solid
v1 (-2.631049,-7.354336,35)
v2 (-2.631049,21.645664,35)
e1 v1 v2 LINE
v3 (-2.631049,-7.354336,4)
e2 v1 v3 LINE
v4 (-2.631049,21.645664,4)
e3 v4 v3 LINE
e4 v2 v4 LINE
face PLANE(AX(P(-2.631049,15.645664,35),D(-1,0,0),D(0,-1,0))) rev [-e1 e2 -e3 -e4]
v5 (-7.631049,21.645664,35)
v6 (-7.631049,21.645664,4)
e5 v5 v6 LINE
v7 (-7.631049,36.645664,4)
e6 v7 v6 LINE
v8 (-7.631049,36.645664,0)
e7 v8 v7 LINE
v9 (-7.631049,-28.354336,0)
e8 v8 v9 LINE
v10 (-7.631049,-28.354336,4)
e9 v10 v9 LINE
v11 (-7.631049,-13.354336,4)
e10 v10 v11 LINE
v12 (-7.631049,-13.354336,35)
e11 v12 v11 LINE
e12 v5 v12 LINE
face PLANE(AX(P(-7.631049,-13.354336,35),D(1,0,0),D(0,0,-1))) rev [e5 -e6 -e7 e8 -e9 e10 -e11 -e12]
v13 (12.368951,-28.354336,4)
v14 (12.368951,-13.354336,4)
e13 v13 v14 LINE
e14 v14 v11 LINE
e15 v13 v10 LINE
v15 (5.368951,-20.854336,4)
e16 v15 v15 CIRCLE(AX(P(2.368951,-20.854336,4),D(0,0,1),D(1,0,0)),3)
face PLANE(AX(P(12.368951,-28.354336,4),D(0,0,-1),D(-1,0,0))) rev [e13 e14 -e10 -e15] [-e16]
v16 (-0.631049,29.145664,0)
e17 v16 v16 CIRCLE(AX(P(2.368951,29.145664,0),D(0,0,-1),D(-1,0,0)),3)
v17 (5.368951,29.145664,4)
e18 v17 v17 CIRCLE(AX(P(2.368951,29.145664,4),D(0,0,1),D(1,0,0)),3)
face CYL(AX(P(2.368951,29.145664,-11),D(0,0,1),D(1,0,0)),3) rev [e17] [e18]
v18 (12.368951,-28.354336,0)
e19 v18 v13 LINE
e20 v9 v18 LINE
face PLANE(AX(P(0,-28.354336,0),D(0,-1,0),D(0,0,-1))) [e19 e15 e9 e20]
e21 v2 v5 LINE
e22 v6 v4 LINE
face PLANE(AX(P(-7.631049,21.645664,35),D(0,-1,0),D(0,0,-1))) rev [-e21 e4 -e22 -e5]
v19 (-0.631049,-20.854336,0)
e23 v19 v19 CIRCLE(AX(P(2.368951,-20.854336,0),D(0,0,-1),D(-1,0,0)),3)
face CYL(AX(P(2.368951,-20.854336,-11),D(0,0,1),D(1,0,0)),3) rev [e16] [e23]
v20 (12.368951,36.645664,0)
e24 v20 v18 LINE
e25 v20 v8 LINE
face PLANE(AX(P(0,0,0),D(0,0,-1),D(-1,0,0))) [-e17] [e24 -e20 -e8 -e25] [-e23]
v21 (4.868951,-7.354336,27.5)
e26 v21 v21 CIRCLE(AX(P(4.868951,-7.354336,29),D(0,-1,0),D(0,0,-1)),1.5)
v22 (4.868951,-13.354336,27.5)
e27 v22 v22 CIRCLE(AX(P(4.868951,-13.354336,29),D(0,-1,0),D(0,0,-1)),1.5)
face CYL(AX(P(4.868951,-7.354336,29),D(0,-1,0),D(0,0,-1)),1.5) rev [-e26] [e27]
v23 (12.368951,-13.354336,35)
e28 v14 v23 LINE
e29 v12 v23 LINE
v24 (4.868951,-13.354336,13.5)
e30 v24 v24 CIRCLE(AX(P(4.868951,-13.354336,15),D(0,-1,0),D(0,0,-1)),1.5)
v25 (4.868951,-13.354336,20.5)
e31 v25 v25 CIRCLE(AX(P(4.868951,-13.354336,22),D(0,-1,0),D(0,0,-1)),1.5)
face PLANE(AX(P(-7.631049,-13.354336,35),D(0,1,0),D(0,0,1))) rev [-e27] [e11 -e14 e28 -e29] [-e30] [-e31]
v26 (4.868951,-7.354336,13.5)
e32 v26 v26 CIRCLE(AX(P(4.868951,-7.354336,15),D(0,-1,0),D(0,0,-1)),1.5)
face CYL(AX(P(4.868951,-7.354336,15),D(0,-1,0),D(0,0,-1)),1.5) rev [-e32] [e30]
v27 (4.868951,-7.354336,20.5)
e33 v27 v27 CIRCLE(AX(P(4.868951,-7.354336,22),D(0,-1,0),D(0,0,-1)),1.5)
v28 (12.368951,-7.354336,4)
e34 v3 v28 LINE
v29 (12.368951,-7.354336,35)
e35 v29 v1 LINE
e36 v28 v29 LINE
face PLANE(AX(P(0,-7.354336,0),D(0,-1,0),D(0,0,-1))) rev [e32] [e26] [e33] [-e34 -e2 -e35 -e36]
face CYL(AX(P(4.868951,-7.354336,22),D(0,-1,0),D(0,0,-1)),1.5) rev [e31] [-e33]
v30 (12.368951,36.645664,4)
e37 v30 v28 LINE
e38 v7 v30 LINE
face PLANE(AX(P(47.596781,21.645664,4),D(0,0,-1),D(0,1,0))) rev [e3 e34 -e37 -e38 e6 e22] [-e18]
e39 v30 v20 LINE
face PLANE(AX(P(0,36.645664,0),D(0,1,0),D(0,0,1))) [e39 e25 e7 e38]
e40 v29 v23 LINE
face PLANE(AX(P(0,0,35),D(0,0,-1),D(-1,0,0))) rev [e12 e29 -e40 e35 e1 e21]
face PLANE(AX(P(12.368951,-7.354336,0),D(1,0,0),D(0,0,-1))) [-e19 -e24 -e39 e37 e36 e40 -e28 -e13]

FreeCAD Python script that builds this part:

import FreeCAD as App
import Part
import Sketcher

V = App.Vector

doc = App.newDocument("Part")
body = doc.addObject("PartDesign::Body", "Body")

sketch1 = doc.addObject("Sketcher::SketchObject", "Sketch")
body.addObject(sketch1)
sketch1.AttachmentSupport = (doc.XY_Plane, [""])
sketch1.MapMode = "FlatFace"
sketch1.addGeometry(Part.LineSegment(V(-3, 16, 0), V(12, 16, 0)), False)
sketch1.addGeometry(Part.LineSegment(V(12, 16, 0), V(12, 22, 0)), False)
sketch1.addGeometry(Part.LineSegment(V(12, 22, 0), V(-8, 22, 0)), False)
sketch1.addGeometry(Part.LineSegment(V(-8, 22, 0), V(-8, -13, 0)), False)
sketch1.addGeometry(Part.LineSegment(V(-8, -13, 0), V(-3, -13, 0)), False)
sketch1.addGeometry(Part.LineSegment(V(-3, -13, 0), V(-3, 16, 0)), False)
sketch1.addConstraint(Sketcher.Constraint("Coincident", 0, 2, 1, 1))
sketch1.addConstraint(Sketcher.Constraint("Coincident", 1, 2, 2, 1))
sketch1.addConstraint(Sketcher.Constraint("Coincident", 2, 2, 3, 1))
sketch1.addConstraint(Sketcher.Constraint("Coincident", 3, 2, 4, 1))
sketch1.addConstraint(Sketcher.Constraint("Coincident", 4, 2, 5, 1))
sketch1.addConstraint(Sketcher.Constraint("Coincident", 5, 2, 0, 1))
sketch1.addConstraint(Sketcher.Constraint("Horizontal", 0))
sketch1.addConstraint(Sketcher.Constraint("Vertical", 1))
sketch1.addConstraint(Sketcher.Constraint("Horizontal", 2))
sketch1.addConstraint(Sketcher.Constraint("Vertical", 3))
sketch1.addConstraint(Sketcher.Constraint("Horizontal", 4))
sketch1.addConstraint(Sketcher.Constraint("Vertical", 5))
sketch1.addConstraint(Sketcher.Constraint("DistanceX", 0, 1, 0, 2, 15.0))
sketch1.addConstraint(Sketcher.Constraint("DistanceX", 2, 2, 2, 1, 20.0))
sketch1.addConstraint(Sketcher.Constraint("DistanceY", 1, 1, 1, 2, 6.0))
sketch1.addConstraint(Sketcher.Constraint("DistanceY", 3, 2, 3, 1, 35.0))
sketch1.addConstraint(Sketcher.Constraint("DistanceX", -1, 1, 0, 2, 12.368951))
sketch1.addConstraint(Sketcher.Constraint("DistanceY", -1, 1, 0, 2, 15.645664))
pad1 = doc.addObject("PartDesign::Pad", "Pad")
body.addObject(pad1)
pad1.Profile = sketch1
pad1.Length = 35

sketch2 = doc.addObject("Sketcher::SketchObject", "Sketch001")
body.addObject(sketch2)
sketch2.AttachmentSupport = (doc.XZ_Plane, [""])
sketch2.MapMode = "FlatFace"
sketch2.AttachmentOffset = App.Placement(V(0, 0, -15.645664), App.Rotation())
sketch2.addGeometry(Part.Circle(V(4.9, 29, 0), V(0, 0, 1), 1.5), False)
sketch2.addConstraint(Sketcher.Constraint("Diameter", 0, 3.0))
sketch2.addConstraint(Sketcher.Constraint("DistanceY", -1, 1, 0, 3, 29.0))
sketch2.addConstraint(Sketcher.Constraint("DistanceX", -1, 1, 0, 3, 4.868951))
pocket1 = doc.addObject("PartDesign::Pocket", "Pocket")
body.addObject(pocket1)
pocket1.Profile = sketch2
pocket1.Length = 15
doc.recompute()

linearpattern = doc.addObject("PartDesign::LinearPattern", "LinearPattern")
body.addObject(linearpattern)
linearpattern.Originals = [pocket1]
linearpattern.Direction = (doc.Z_Axis, [""])
linearpattern.Mode = "offset"
linearpattern.Offset = 7
linearpattern.Occurrences = 3
linearpattern.Reversed = True
body.Tip = linearpattern

sketch3 = doc.addObject("Sketcher::SketchObject", "Sketch002")
body.addObject(sketch3)
sketch3.AttachmentSupport = (doc.XZ_Plane, [""])
sketch3.MapMode = "FlatFace"
sketch3.AttachmentOffset = App.Placement(V(0, 0, 13.354336), App.Rotation())
sketch3.addGeometry(Part.LineSegment(V(-2.6, 35, 0), V(-2.6, 0, 0)), False)
sketch3.addGeometry(Part.LineSegment(V(-2.6, 0, 0), V(12.4, 0, 0)), False)
sketch3.addGeometry(Part.LineSegment(V(12.4, 0, 0), V(12.4, 35, 0)), False)
sketch3.addGeometry(Part.LineSegment(V(12.4, 35, 0), V(-2.6, 35, 0)), False)
sketch3.addGeometry(Part.Circle(V(4.9, 15, 0), V(0, 0, 1), 1.5), False)
sketch3.addGeometry(Part.Circle(V(4.9, 22, 0), V(0, 0, 1), 1.5), False)
sketch3.addGeometry(Part.Circle(V(4.9, 29, 0), V(0, 0, 1), 1.5), False)
sketch3.addConstraint(Sketcher.Constraint("Coincident", 0, 2, 1, 1))
sketch3.addConstraint(Sketcher.Constraint("Coincident", 1, 2, 2, 1))
sketch3.addConstraint(Sketcher.Constraint("Coincident", 2, 2, 3, 1))
sketch3.addConstraint(Sketcher.Constraint("Coincident", 3, 2, 0, 1))
sketch3.addConstraint(Sketcher.Constraint("Vertical", 0))
sketch3.addConstraint(Sketcher.Constraint("Horizontal", 1))
sketch3.addConstraint(Sketcher.Constraint("Vertical", 2))
sketch3.addConstraint(Sketcher.Constraint("Horizontal", 3))
sketch3.addConstraint(Sketcher.Constraint("Equal", 4, 5))
sketch3.addConstraint(Sketcher.Constraint("Equal", 5, 6))
sketch3.addConstraint(Sketcher.Constraint("PointOnObject", 0, 2, -1))
sketch3.addConstraint(Sketcher.Constraint("Vertical", 4, 3, 5, 3))
sketch3.addConstraint(Sketcher.Constraint("Vertical", 5, 3, 6, 3))
sketch3.addConstraint(Sketcher.Constraint("Diameter", 4, 3.0))
sketch3.addConstraint(Sketcher.Constraint("DistanceX", 1, 1, 1, 2, 15.0))
sketch3.addConstraint(Sketcher.Constraint("DistanceY", 0, 2, 0, 1, 35.0))
sketch3.addConstraint(Sketcher.Constraint("DistanceY", -1, 1, 4, 3, 15.0))
sketch3.addConstraint(Sketcher.Constraint("DistanceY", -1, 1, 5, 3, 22.0))
sketch3.addConstraint(Sketcher.Constraint("DistanceY", -1, 1, 6, 3, 29.0))
sketch3.addConstraint(Sketcher.Constraint("DistanceX", 0, 2, 4, 3, 7.5))
sketch3.addConstraint(Sketcher.Constraint("DistanceX", -1, 1, 4, 3, 4.868951))
pad2 = doc.addObject("PartDesign::Pad", "Pad001")
body.addObject(pad2)
pad2.Profile = sketch3
pad2.Length = 6
pad2.Reversed = True

sketch4 = doc.addObject("Sketcher::SketchObject", "Sketch003")
body.addObject(sketch4)
sketch4.AttachmentSupport = (doc.XZ_Plane, [""])
sketch4.MapMode = "FlatFace"
sketch4.AttachmentOffset = App.Placement(V(0, 0, -15.645664), App.Rotation())
sketch4.addGeometry(Part.LineSegment(V(-3, 35, 0), V(-3, 0, 0)), False)
sketch4.addGeometry(Part.LineSegment(V(-3, 0, 0), V(12, 0, 0)), False)
sketch4.addGeometry(Part.LineSegment(V(12, 0, 0), V(12, 35, 0)), False)
sketch4.addGeometry(Part.LineSegment(V(12, 35, 0), V(-3, 35, 0)), False)
sketch4.addConstraint(Sketcher.Constraint("Coincident", 0, 2, 1, 1))
sketch4.addConstraint(Sketcher.Constraint("Coincident", 1, 2, 2, 1))
sketch4.addConstraint(Sketcher.Constraint("Coincident", 2, 2, 3, 1))
sketch4.addConstraint(Sketcher.Constraint("Coincident", 3, 2, 0, 1))
sketch4.addConstraint(Sketcher.Constraint("Vertical", 0))
sketch4.addConstraint(Sketcher.Constraint("Horizontal", 1))
sketch4.addConstraint(Sketcher.Constraint("Vertical", 2))
sketch4.addConstraint(Sketcher.Constraint("Horizontal", 3))
sketch4.addConstraint(Sketcher.Constraint("PointOnObject", 0, 2, -1))
sketch4.addConstraint(Sketcher.Constraint("DistanceX", 1, 1, 1, 2, 15.0))
sketch4.addConstraint(Sketcher.Constraint("DistanceY", 0, 2, 0, 1, 35.0))
sketch4.addConstraint(Sketcher.Constraint("DistanceX", 0, 2, -1, 1, 2.631049))
pocket2 = doc.addObject("PartDesign::Pocket", "Pocket001")
body.addObject(pocket2)
pocket2.Profile = sketch4
pocket2.Length = 8

sketch5 = doc.addObject("Sketcher::SketchObject", "Sketch004")
body.addObject(sketch5)
sketch5.AttachmentSupport = (doc.YZ_Plane, [""])
sketch5.MapMode = "FlatFace"
sketch5.AttachmentOffset = App.Placement(V(0, 0, -7.631049), App.Rotation())
sketch5.addGeometry(Part.LineSegment(V(21.6, 0, 0), V(-13.4, 0, 0)), False)
sketch5.addGeometry(Part.LineSegment(V(-13.4, 0, 0), V(-13.4, 4, 0)), False)
sketch5.addGeometry(Part.LineSegment(V(-13.4, 4, 0), V(21.6, 4, 0)), False)
sketch5.addGeometry(Part.LineSegment(V(21.6, 4, 0), V(21.6, 0, 0)), False)
sketch5.addConstraint(Sketcher.Constraint("Coincident", 0, 2, 1, 1))
sketch5.addConstraint(Sketcher.Constraint("Coincident", 1, 2, 2, 1))
sketch5.addConstraint(Sketcher.Constraint("Coincident", 2, 2, 3, 1))
sketch5.addConstraint(Sketcher.Constraint("Coincident", 3, 2, 0, 1))
sketch5.addConstraint(Sketcher.Constraint("Horizontal", 0))
sketch5.addConstraint(Sketcher.Constraint("Vertical", 1))
sketch5.addConstraint(Sketcher.Constraint("Horizontal", 2))
sketch5.addConstraint(Sketcher.Constraint("Vertical", 3))
sketch5.addConstraint(Sketcher.Constraint("PointOnObject", 0, 2, -1))
sketch5.addConstraint(Sketcher.Constraint("DistanceX", 0, 2, 0, 1, 35.0))
sketch5.addConstraint(Sketcher.Constraint("DistanceY", 1, 1, 1, 2, 4.0))
sketch5.addConstraint(Sketcher.Constraint("DistanceX", 0, 2, -1, 1, 13.354336))
pad3 = doc.addObject("PartDesign::Pad", "Pad002")
body.addObject(pad3)
pad3.Profile = sketch5
pad3.Length = 20

sketch6 = doc.addObject("Sketcher::SketchObject", "Sketch005")
body.addObject(sketch6)
sketch6.AttachmentSupport = (doc.XZ_Plane, [""])
sketch6.MapMode = "FlatFace"
sketch6.AttachmentOffset = App.Placement(V(0, 0, -21.645664), App.Rotation())
sketch6.addGeometry(Part.LineSegment(V(-7.6, 4, 0), V(12.4, 4, 0)), False)
sketch6.addGeometry(Part.LineSegment(V(12.4, 4, 0), V(12.4, 0, 0)), False)
sketch6.addGeometry(Part.LineSegment(V(12.4, 0, 0), V(-7.6, 0, 0)), False)
sketch6.addGeometry(Part.LineSegment(V(-7.6, 0, 0), V(-7.6, 4, 0)), False)
sketch6.addConstraint(Sketcher.Constraint("Coincident", 0, 2, 1, 1))
sketch6.addConstraint(Sketcher.Constraint("Coincident", 1, 2, 2, 1))
sketch6.addConstraint(Sketcher.Constraint("Coincident", 2, 2, 3, 1))
sketch6.addConstraint(Sketcher.Constraint("Coincident", 3, 2, 0, 1))
sketch6.addConstraint(Sketcher.Constraint("Horizontal", 0))
sketch6.addConstraint(Sketcher.Constraint("Vertical", 1))
sketch6.addConstraint(Sketcher.Constraint("Horizontal", 2))
sketch6.addConstraint(Sketcher.Constraint("Vertical", 3))
sketch6.addConstraint(Sketcher.Constraint("PointOnObject", 1, 2, -1))
sketch6.addConstraint(Sketcher.Constraint("DistanceX", 0, 1, 0, 2, 20.0))
sketch6.addConstraint(Sketcher.Constraint("DistanceY", 1, 2, 1, 1, 4.0))
sketch6.addConstraint(Sketcher.Constraint("DistanceX", -1, 1, 0, 2, 12.368951))
pad4 = doc.addObject("PartDesign::Pad", "Pad003")
body.addObject(pad4)
pad4.Profile = sketch6
pad4.Length = 15
pad4.Reversed = True

sketch7 = doc.addObject("Sketcher::SketchObject", "Sketch006")
body.addObject(sketch7)
sketch7.AttachmentSupport = (doc.XZ_Plane, [""])
sketch7.MapMode = "FlatFace"
sketch7.AttachmentOffset = App.Placement(V(0, 0, 13.354336), App.Rotation())
sketch7.addGeometry(Part.LineSegment(V(-7.6, 4, 0), V(-7.6, 0, 0)), False)
sketch7.addGeometry(Part.LineSegment(V(-7.6, 0, 0), V(12.4, 0, 0)), False)
sketch7.addGeometry(Part.LineSegment(V(12.4, 0, 0), V(12.4, 4, 0)), False)
sketch7.addGeometry(Part.LineSegment(V(12.4, 4, 0), V(-7.6, 4, 0)), False)
sketch7.addConstraint(Sketcher.Constraint("Coincident", 0, 2, 1, 1))
sketch7.addConstraint(Sketcher.Constraint("Coincident", 1, 2, 2, 1))
sketch7.addConstraint(Sketcher.Constraint("Coincident", 2, 2, 3, 1))
sketch7.addConstraint(Sketcher.Constraint("Coincident", 3, 2, 0, 1))
sketch7.addConstraint(Sketcher.Constraint("Vertical", 0))
sketch7.addConstraint(Sketcher.Constraint("Horizontal", 1))
sketch7.addConstraint(Sketcher.Constraint("Vertical", 2))
sketch7.addConstraint(Sketcher.Constraint("Horizontal", 3))
sketch7.addConstraint(Sketcher.Constraint("PointOnObject", 0, 2, -1))
sketch7.addConstraint(Sketcher.Constraint("DistanceX", 1, 1, 1, 2, 20.0))
sketch7.addConstraint(Sketcher.Constraint("DistanceY", 0, 2, 0, 1, 4.0))
sketch7.addConstraint(Sketcher.Constraint("DistanceX", 0, 2, -1, 1, 7.631049))
pad5 = doc.addObject("PartDesign::Pad", "Pad004")
body.addObject(pad5)
pad5.Profile = sketch7
pad5.Length = 15

sketch8 = doc.addObject("Sketcher::SketchObject", "Sketch007")
body.addObject(sketch8)
sketch8.AttachmentSupport = (doc.XY_Plane, [""])
sketch8.MapMode = "FlatFace"
sketch8.AttachmentOffset = App.Placement(V(0, 0, 4), App.Rotation())
sketch8.addGeometry(Part.Circle(V(2.4, -20.9, 0), V(0, 0, 1), 3), False)
sketch8.addGeometry(Part.Circle(V(2.4, 29.1, 0), V(0, 0, 1), 3), False)
sketch8.addConstraint(Sketcher.Constraint("Equal", 0, 1))
sketch8.addConstraint(Sketcher.Constraint("Vertical", 0, 3, 1, 3))
sketch8.addConstraint(Sketcher.Constraint("Diameter", 0, 6.0))
sketch8.addConstraint(Sketcher.Constraint("DistanceY", 0, 3, 1, 3, 50.0))
sketch8.addConstraint(Sketcher.Constraint("DistanceX", -1, 1, 0, 3, 2.368951))
sketch8.addConstraint(Sketcher.Constraint("DistanceY", 0, 3, -1, 1, 20.854336))
pocket3 = doc.addObject("PartDesign::Pocket", "Pocket002")
body.addObject(pocket3)
pocket3.Profile = sketch8
pocket3.Length = 15

doc.recompute()
